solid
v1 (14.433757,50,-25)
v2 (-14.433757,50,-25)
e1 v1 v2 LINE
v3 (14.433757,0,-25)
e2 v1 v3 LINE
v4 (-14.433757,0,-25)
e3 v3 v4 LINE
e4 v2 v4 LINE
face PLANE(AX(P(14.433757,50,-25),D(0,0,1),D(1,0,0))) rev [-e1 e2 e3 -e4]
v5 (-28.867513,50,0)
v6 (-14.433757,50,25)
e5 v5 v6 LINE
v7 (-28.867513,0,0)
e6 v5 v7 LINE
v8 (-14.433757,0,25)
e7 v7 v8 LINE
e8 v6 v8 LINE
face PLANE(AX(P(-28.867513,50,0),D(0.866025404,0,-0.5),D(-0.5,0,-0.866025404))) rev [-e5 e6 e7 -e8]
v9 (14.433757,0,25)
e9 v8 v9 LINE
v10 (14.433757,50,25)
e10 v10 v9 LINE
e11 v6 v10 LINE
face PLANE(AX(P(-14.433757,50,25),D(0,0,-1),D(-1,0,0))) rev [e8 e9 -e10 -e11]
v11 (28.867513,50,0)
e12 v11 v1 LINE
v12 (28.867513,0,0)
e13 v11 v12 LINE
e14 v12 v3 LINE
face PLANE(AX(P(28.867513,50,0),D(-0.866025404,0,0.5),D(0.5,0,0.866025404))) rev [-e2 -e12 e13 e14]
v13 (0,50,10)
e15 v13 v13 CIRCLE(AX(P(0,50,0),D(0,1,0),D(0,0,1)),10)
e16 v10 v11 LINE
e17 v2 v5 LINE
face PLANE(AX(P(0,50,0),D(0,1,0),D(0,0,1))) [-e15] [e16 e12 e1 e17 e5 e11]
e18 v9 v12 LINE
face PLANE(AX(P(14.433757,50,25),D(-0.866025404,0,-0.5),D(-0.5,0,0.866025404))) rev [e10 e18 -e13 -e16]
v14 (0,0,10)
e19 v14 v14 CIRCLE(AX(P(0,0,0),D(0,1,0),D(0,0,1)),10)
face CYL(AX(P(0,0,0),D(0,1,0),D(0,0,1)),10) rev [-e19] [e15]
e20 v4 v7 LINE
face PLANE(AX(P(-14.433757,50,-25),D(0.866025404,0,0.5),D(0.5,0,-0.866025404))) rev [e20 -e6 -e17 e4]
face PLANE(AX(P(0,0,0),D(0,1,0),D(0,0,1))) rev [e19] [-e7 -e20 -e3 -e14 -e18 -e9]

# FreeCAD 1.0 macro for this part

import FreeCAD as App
import Part
import Sketcher

V = App.Vector
Q = App.Units.Quantity


def add_polygon(sketch, points):
    """Adds a closed chain of lines whose ends are joined by coincident constraints."""
    first, n = sketch.GeometryCount, len(points)
    for a, b in zip(points, points[1:] + points[:1]):
        sketch.addGeometry(Part.LineSegment(App.Vector(*a, 0), App.Vector(*b, 0)), False)
    for i in range(n):
        sketch.addConstraint(Sketcher.Constraint("Coincident", first + i, 2, first + (i + 1) % n, 1))

doc = App.newDocument("Part")
body = doc.addObject("PartDesign::Body", "Body")

sketch1 = body.newObject("Sketcher::SketchObject", "Sketch")
sketch1.AttachmentSupport = (doc.getObject("XZ_Plane"), [""])
sketch1.MapMode = "FlatFace"
add_polygon(sketch1, [(-14, -25), (-29, 0), (-14, 25), (14, 25), (29, 0), (14, -25)])
sketch1.addConstraint(Sketcher.Constraint("Horizontal", 2))
sketch1.addConstraint(Sketcher.Constraint("Horizontal", 5))
sketch1.addConstraint(Sketcher.Constraint("Symmetric", 0, 2, 3, 2, -1, 1))
sketch1.addConstraint(Sketcher.Constraint("Symmetric", 1, 2, 4, 2, -1, 1))
sketch1.addConstraint(Sketcher.Constraint("PointOnObject", 0, 2, -1))
sketch1.addConstraint(Sketcher.Constraint("Parallel", 0, 3))
sketch1.addConstraint(Sketcher.Constraint("Vertical", 2, 2, 4, 2))
sketch1.addConstraint(Sketcher.Constraint("Angle", 0, Q("120 deg")))
sketch1.addConstraint(Sketcher.Constraint("DistanceY", -1, 1, 1, 2, Q("25 mm")))
sketch1.addConstraint(Sketcher.Constraint("DistanceX", 2, 1, 2, 2, Q("28.867513 mm")))
pad1 = body.newObject("PartDesign::Pad", "Pad")
pad1.Profile = sketch1
pad1.Length = 50
pad1.Reversed = True

sketch2 = body.newObject("Sketcher::SketchObject", "Sketch001")
sketch2.AttachmentSupport = (doc.getObject("XZ_Plane"), [""])
sketch2.MapMode = "FlatFace"
sketch2.AttachmentOffset = App.Placement(V(0, 0, -50), App.Rotation())
sketch2.addGeometry(Part.Circle(V(0, 0, 0), V(0, 0, 1), 10), False)
sketch2.addConstraint(Sketcher.Constraint("Coincident", 0, 3, -1, 1))
sketch2.addConstraint(Sketcher.Constraint("Diameter", 0, Q("20 mm")))
pocket1 = body.newObject("PartDesign::Pocket", "Pocket")
pocket1.Profile = sketch2
pocket1.Type = "ThroughAll"
pocket1.Midplane = True

doc.recompute()
